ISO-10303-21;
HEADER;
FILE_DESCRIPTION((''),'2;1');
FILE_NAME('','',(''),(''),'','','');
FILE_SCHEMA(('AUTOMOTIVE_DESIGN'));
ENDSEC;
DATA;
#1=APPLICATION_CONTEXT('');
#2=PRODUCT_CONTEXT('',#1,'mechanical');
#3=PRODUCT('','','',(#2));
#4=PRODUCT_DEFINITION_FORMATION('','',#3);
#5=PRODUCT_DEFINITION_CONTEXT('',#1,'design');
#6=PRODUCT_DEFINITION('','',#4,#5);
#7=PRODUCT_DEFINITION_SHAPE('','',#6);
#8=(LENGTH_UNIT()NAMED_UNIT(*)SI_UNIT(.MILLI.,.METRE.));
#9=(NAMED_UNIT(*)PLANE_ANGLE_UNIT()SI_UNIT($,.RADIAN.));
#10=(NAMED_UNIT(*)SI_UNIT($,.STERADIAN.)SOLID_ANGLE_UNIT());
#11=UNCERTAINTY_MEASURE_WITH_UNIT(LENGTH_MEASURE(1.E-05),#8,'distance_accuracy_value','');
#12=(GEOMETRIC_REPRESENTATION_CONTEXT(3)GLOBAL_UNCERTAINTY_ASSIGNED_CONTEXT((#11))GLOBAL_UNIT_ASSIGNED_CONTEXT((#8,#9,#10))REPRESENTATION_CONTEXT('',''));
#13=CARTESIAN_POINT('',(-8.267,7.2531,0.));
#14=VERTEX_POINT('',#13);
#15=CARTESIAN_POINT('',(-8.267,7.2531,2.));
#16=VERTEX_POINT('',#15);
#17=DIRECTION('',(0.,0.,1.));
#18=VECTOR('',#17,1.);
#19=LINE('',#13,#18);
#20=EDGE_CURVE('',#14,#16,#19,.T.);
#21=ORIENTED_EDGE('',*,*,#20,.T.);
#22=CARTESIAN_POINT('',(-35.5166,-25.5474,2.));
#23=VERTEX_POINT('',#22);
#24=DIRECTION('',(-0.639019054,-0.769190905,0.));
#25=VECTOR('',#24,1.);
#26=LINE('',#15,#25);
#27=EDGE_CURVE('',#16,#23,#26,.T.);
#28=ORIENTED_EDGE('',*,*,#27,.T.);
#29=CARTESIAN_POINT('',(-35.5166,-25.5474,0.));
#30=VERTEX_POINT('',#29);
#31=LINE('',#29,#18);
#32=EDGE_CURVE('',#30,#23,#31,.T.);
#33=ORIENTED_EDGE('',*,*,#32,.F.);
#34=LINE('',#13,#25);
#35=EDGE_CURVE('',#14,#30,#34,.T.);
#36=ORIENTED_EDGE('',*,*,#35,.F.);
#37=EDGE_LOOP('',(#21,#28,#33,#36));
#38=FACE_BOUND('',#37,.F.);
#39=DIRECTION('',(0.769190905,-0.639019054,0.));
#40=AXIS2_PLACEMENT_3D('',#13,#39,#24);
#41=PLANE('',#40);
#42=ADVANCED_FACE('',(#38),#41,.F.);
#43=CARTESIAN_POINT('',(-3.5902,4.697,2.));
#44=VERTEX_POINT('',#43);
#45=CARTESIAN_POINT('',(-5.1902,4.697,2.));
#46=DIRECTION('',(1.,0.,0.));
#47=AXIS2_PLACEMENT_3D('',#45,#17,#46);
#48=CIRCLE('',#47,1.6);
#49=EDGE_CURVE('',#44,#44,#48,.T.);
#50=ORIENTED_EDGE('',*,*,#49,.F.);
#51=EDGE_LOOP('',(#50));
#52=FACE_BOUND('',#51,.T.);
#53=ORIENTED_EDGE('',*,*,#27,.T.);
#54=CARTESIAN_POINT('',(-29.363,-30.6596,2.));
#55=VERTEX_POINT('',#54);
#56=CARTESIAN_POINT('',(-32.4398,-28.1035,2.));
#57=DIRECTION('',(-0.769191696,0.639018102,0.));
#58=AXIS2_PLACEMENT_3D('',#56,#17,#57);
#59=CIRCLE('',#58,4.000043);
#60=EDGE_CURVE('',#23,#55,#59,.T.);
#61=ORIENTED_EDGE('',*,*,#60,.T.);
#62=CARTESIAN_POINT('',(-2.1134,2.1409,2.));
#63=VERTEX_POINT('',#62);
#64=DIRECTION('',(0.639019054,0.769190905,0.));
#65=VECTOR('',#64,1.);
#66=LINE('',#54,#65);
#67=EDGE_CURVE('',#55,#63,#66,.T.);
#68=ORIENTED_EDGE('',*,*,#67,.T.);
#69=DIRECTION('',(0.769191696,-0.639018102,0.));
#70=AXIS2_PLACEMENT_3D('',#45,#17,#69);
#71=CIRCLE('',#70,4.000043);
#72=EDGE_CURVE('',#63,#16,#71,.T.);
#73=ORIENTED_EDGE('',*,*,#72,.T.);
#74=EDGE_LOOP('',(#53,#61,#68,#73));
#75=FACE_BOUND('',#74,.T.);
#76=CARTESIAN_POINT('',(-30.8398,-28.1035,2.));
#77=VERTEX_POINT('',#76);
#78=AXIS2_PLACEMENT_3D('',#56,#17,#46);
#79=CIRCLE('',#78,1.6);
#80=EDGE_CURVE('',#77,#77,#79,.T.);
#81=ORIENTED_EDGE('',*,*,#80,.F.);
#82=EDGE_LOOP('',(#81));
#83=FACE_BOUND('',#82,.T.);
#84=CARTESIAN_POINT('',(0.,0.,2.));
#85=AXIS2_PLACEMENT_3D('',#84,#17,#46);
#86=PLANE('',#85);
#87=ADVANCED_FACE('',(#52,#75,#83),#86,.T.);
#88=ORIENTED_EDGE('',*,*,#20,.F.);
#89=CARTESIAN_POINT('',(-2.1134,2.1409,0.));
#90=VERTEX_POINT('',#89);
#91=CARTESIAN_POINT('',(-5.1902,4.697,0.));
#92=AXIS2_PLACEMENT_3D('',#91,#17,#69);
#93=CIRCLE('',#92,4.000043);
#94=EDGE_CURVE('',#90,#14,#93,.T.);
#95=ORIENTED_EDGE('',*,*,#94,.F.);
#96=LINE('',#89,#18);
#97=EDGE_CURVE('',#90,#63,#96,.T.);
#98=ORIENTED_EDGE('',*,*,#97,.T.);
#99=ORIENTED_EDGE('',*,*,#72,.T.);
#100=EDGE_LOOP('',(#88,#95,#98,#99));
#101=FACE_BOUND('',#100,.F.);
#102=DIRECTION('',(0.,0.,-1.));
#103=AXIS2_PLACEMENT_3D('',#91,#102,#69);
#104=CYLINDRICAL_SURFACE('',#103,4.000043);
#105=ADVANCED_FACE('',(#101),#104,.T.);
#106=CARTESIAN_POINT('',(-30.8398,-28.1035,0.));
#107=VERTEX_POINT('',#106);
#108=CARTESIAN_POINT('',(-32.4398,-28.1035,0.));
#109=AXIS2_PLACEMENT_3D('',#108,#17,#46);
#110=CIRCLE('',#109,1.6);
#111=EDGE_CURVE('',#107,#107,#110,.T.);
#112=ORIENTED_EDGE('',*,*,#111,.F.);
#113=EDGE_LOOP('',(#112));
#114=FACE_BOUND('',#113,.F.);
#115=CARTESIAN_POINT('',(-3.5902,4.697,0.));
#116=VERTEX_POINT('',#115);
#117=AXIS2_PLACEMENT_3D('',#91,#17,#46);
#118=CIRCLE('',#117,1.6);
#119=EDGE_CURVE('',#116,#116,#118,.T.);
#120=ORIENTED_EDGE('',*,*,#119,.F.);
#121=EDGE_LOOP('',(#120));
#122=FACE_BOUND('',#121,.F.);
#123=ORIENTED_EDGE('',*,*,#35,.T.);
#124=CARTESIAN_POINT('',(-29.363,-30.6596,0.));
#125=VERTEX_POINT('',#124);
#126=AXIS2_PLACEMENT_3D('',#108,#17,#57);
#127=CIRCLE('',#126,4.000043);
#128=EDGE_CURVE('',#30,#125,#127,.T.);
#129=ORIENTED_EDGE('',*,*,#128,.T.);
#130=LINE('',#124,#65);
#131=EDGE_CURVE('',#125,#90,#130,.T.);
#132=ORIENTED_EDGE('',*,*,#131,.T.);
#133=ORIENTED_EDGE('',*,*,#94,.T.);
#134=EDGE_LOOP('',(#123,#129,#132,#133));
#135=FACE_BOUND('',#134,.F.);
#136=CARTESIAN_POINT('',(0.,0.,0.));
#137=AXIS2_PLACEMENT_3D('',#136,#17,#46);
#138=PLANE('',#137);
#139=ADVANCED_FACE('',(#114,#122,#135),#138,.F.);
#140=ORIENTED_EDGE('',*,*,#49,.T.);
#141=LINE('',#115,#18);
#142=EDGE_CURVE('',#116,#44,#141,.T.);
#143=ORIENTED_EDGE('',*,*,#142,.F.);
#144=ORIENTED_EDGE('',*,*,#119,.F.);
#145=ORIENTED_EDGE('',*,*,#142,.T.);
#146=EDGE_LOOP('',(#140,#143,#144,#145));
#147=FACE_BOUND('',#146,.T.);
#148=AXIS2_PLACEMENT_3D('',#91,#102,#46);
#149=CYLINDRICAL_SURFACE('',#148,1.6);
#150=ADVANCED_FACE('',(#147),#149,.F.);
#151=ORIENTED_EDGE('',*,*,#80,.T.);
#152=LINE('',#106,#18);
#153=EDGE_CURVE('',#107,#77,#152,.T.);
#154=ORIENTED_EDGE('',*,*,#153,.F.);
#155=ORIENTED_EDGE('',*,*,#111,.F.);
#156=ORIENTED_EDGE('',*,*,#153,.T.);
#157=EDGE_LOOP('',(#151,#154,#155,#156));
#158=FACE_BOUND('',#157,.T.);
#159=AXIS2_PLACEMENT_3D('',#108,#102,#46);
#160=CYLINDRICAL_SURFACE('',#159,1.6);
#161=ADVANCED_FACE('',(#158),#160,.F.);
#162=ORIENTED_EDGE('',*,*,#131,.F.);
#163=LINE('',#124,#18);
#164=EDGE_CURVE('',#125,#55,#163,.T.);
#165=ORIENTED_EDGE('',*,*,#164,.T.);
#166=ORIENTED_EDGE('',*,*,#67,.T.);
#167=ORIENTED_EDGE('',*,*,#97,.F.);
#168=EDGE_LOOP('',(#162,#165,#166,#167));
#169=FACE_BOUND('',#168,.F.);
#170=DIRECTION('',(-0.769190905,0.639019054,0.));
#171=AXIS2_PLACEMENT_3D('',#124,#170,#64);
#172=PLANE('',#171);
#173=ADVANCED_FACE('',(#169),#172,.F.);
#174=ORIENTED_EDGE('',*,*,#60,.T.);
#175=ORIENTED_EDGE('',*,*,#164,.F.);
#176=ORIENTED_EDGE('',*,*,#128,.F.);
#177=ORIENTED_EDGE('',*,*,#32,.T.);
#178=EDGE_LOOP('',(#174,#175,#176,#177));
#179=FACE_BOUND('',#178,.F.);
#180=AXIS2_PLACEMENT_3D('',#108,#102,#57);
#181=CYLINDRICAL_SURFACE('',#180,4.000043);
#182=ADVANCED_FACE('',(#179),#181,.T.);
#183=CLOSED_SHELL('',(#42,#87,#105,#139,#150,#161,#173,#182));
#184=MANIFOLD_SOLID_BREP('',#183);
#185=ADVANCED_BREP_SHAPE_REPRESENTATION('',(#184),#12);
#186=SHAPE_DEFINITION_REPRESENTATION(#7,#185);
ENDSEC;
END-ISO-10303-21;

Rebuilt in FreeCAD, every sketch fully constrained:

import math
import FreeCAD as App
import Part
import Sketcher

doc = App.newDocument("Part")
body = doc.addObject("PartDesign::Body", "Body")

sketch1 = doc.addObject("Sketcher::SketchObject", "Sketch")
body.addObject(sketch1)
sketch1.AttachmentSupport = (doc.XY_Plane, [""])
sketch1.MapMode = "FlatFace"
sketch1.addGeometry([
    Part.ArcOfCircle(Part.Circle(App.Vector(-32.4, -28.1, 0), App.Vector(0, 0, 1), 4), math.radians(140), math.radians(320)),
    Part.LineSegment(App.Vector(-29.4, -30.7, 0), App.Vector(-2.1, 2.1, 0)),
    Part.ArcOfCircle(Part.Circle(App.Vector(-5.2, 4.7, 0), App.Vector(0, 0, 1), 4), math.radians(-40), math.radians(140)),
    Part.LineSegment(App.Vector(-8.3, 7.3, 0), App.Vector(-35.5, -25.5, 0)),
    Part.Circle(App.Vector(-32.4, -28.1, 0), App.Vector(0, 0, 1), 1.6),
    Part.Circle(App.Vector(-5.2, 4.7, 0), App.Vector(0, 0, 1), 1.6),
], False)
sketch1.addConstraint([
    Sketcher.Constraint("Tangent", 0, 2, 1, 1),
    Sketcher.Constraint("Tangent", 1, 2, 2, 1),
    Sketcher.Constraint("Tangent", 2, 2, 3, 1),
    Sketcher.Constraint("Tangent", 3, 2, 0, 1),
    Sketcher.Constraint("Coincident", 4, 3, 0, 3),
    Sketcher.Constraint("Coincident", 5, 3, 2, 3),
    Sketcher.Constraint("Equal", 0, 2),
    Sketcher.Constraint("Equal", 4, 5),
    Sketcher.Constraint("Radius", 0, 4.0),
    Sketcher.Constraint("Diameter", 4, 3.2),
    Sketcher.Constraint("DistanceY", -1, 1, 2, 3, 4.697),
    Sketcher.Constraint("DistanceX", 0, 2, -1, 1, 29.363),
    Sketcher.Constraint("DistanceY", -1, 1, 1, 2, 2.141),
    Sketcher.Constraint("DistanceX", 2, 2, -1, 1, 8.267),
])
pad1 = doc.addObject("PartDesign::Pad", "Pad")
body.addObject(pad1)
pad1.Profile = sketch1
pad1.Length = 2

doc.recompute()
